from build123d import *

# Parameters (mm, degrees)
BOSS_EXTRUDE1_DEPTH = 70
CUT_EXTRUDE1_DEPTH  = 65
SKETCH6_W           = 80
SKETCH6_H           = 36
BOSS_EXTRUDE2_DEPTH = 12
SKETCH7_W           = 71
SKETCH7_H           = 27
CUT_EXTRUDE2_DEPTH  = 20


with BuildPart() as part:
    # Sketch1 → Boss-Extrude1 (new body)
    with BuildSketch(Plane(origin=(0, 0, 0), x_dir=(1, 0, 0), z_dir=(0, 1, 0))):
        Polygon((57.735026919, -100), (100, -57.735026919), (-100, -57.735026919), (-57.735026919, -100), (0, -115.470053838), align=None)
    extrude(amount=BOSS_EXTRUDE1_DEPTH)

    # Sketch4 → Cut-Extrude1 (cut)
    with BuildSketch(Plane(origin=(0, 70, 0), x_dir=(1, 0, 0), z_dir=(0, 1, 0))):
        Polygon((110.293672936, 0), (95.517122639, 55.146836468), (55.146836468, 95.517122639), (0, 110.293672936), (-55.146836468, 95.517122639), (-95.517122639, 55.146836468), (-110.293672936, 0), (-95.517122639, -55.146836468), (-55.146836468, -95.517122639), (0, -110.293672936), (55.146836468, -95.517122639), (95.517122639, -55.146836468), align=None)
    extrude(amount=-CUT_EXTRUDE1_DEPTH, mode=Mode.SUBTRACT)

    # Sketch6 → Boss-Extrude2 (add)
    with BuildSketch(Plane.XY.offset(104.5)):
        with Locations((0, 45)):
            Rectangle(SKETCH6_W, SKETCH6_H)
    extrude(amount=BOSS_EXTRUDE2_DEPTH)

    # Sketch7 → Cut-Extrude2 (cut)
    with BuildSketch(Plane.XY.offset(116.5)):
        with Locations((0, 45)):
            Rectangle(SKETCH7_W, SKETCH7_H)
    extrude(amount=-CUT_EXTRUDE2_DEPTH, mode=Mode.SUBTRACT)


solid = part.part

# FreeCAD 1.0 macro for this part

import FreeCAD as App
import Part
import Sketcher
from FreeCAD import Vector
Q = App.Units.Quantity

doc = App.newDocument("Part")
params = doc.addObject("Spreadsheet::Sheet", "Params")
for row, (alias, value) in enumerate([
    ("sketch1_width", "200 mm"),
    ("pad1_length", "70 mm"),
    ("pocket1_length", "65 mm"),
    ("sketch3_width", "80 mm"),
    ("sketch3_height", "36 mm"),
    ("pad2_length", "12 mm"),
    ("sketch4_width", "71 mm"),
    ("sketch4_height", "27 mm"),
    ("pocket2_length", "20 mm"),
], start=1):
    params.set(f"A{row}", alias)
    params.set(f"B{row}", "=" + value)
    params.setAlias(f"B{row}", alias)

body = doc.addObject("PartDesign::Body", "Body")

sketch1 = body.newObject("Sketcher::SketchObject", "Sketch")
sketch1.AttachmentSupport = (doc.getObject("XZ_Plane"), [""])
sketch1.MapMode = "FlatFace"
sketch1.addGeometry([
    Part.LineSegment(Vector(57.735027, 100, 0), Vector(100, 57.735027, 0)),
    Part.LineSegment(Vector(100, 57.735027, 0), Vector(-100, 57.735027, 0)),
    Part.LineSegment(Vector(-100, 57.735027, 0), Vector(-57.735027, 100, 0)),
    Part.LineSegment(Vector(-57.735027, 100, 0), Vector(0, 115.470054, 0)),
    Part.LineSegment(Vector(0, 115.470054, 0), Vector(57.735027, 100, 0)),
], False)
sketch1.addConstraint([
    Sketcher.Constraint("Coincident", 0, 2, 1, 1),
    Sketcher.Constraint("Coincident", 1, 2, 2, 1),
    Sketcher.Constraint("Coincident", 2, 2, 3, 1),
    Sketcher.Constraint("Coincident", 3, 2, 4, 1),
    Sketcher.Constraint("Coincident", 4, 2, 0, 1),
    Sketcher.Constraint("Horizontal", 1),
    Sketcher.Constraint("Symmetric", 2, 2, 4, 2, -2),
    Sketcher.Constraint("PointOnObject", 3, 2, -2),
    Sketcher.Constraint("Perpendicular", 0, 2),
    Sketcher.Constraint("Equal", 0, 2),
    Sketcher.Constraint("Equal", 2, 3),
    Sketcher.Constraint("DistanceX", 1, 2, 1, 1, 200.0),
    Sketcher.Constraint("Angle", 3, Q("15 deg")),
    Sketcher.Constraint("DistanceY", -1, 1, 2, 2, 100.0),
])
sketch1.setExpression("Constraints[11]", "Params.sketch1_width")
pad1 = body.newObject("PartDesign::Pad", "Pad")
pad1.Profile = sketch1
pad1.setExpression("Length", "Params.pad1_length")
pad1.Reversed = True

sketch2 = body.newObject("Sketcher::SketchObject", "Sketch001")
sketch2.AttachmentSupport = (doc.getObject("XZ_Plane"), [""])
sketch2.MapMode = "FlatFace"
sketch2.AttachmentOffset = App.Placement(Vector(0, 0, -70), App.Rotation())
sketch2.addGeometry([
    Part.LineSegment(Vector(110.293673, 0, 0), Vector(95.517123, -55.146836, 0)),
    Part.LineSegment(Vector(95.517123, -55.146836, 0), Vector(55.146836, -95.517123, 0)),
    Part.LineSegment(Vector(55.146836, -95.517123, 0), Vector(0, -110.293673, 0)),
    Part.LineSegment(Vector(0, -110.293673, 0), Vector(-55.146836, -95.517123, 0)),
    Part.LineSegment(Vector(-55.146836, -95.517123, 0), Vector(-95.517123, -55.146836, 0)),
    Part.LineSegment(Vector(-95.517123, -55.146836, 0), Vector(-110.293673, 0, 0)),
    Part.LineSegment(Vector(-110.293673, 0, 0), Vector(-95.517123, 55.146836, 0)),
    Part.LineSegment(Vector(-95.517123, 55.146836, 0), Vector(-55.146836, 95.517123, 0)),
    Part.LineSegment(Vector(-55.146836, 95.517123, 0), Vector(0, 110.293673, 0)),
    Part.LineSegment(Vector(0, 110.293673, 0), Vector(55.146836, 95.517123, 0)),
    Part.LineSegment(Vector(55.146836, 95.517123, 0), Vector(95.517123, 55.146836, 0)),
    Part.LineSegment(Vector(95.517123, 55.146836, 0), Vector(110.293673, 0, 0)),
], False)
sketch2.addConstraint([
    Sketcher.Constraint("Coincident", 0, 2, 1, 1),
    Sketcher.Constraint("Coincident", 1, 2, 2, 1),
    Sketcher.Constraint("Coincident", 2, 2, 3, 1),
    Sketcher.Constraint("Coincident", 3, 2, 4, 1),
    Sketcher.Constraint("Coincident", 4, 2, 5, 1),
    Sketcher.Constraint("Coincident", 5, 2, 6, 1),
    Sketcher.Constraint("Coincident", 6, 2, 7, 1),
    Sketcher.Constraint("Coincident", 7, 2, 8, 1),
    Sketcher.Constraint("Coincident", 8, 2, 9, 1),
    Sketcher.Constraint("Coincident", 9, 2, 10, 1),
    Sketcher.Constraint("Coincident", 10, 2, 11, 1),
    Sketcher.Constraint("Coincident", 11, 2, 0, 1),
    Sketcher.Constraint("Symmetric", 0, 2, 6, 2, -1, 1),
    Sketcher.Constraint("Symmetric", 1, 2, 7, 2, -1, 1),
    Sketcher.Constraint("Symmetric", 2, 2, 8, 2, -1, 1),
    Sketcher.Constraint("Symmetric", 3, 2, 9, 2, -1, 1),
    Sketcher.Constraint("Symmetric", 4, 2, 10, 2, -1, 1),
    Sketcher.Constraint("Symmetric", 5, 2, 11, 2, -1, 1),
    Sketcher.Constraint("Symmetric", 1, 2, 3, 2, -2),
    Sketcher.Constraint("Symmetric", 0, 2, 4, 2, -2),
    Sketcher.Constraint("PointOnObject", 2, 2, -2),
    Sketcher.Constraint("PointOnObject", 5, 2, -1),
    Sketcher.Constraint("Perpendicular", 0, 3),
    Sketcher.Constraint("Perpendicular", 1, 4),
    Sketcher.Constraint("Equal", 0, 1),
    Sketcher.Constraint("Equal", 1, 2),
    Sketcher.Constraint("Angle", 0, Q("-105 deg")),
    Sketcher.Constraint("DistanceY", 2, 2, 1, 2, 14.77655),
])
pocket1 = body.newObject("PartDesign::Pocket", "Pocket")
pocket1.Profile = sketch2
pocket1.setExpression("Length", "Params.pocket1_length")
pocket1.Reversed = True

sketch3 = body.newObject("Sketcher::SketchObject", "Sketch002")
sketch3.AttachmentSupport = (doc.getObject("XY_Plane"), [""])
sketch3.MapMode = "FlatFace"
sketch3.AttachmentOffset = App.Placement(Vector(0, 0, 104.5), App.Rotation())
sketch3.addGeometry([
    Part.LineSegment(Vector(-40, 63, 0), Vector(-40, 27, 0)),
    Part.LineSegment(Vector(-40, 27, 0), Vector(40, 27, 0)),
    Part.LineSegment(Vector(40, 27, 0), Vector(40, 63, 0)),
    Part.LineSegment(Vector(40, 63, 0), Vector(-40, 63, 0)),
], False)
sketch3.addConstraint([
    Sketcher.Constraint("Coincident", 0, 2, 1, 1),
    Sketcher.Constraint("Coincident", 1, 2, 2, 1),
    Sketcher.Constraint("Coincident", 2, 2, 3, 1),
    Sketcher.Constraint("Coincident", 3, 2, 0, 1),
    Sketcher.Constraint("Vertical", 0),
    Sketcher.Constraint("Horizontal", 1),
    Sketcher.Constraint("Vertical", 2),
    Sketcher.Constraint("Horizontal", 3),
    Sketcher.Constraint("DistanceX", 1, 1, 1, 2, 80.0),
    Sketcher.Constraint("DistanceY", 0, 2, 0, 1, 36.0),
    Sketcher.Constraint("DistanceX", 0, 2, -1, 1, 40.0),
    Sketcher.Constraint("DistanceY", -1, 1, 0, 2, 27.0),
])
sketch3.setExpression("Constraints[8]", "Params.sketch3_width")
sketch3.setExpression("Constraints[9]", "Params.sketch3_height")
pad2 = body.newObject("PartDesign::Pad", "Pad001")
pad2.Profile = sketch3
pad2.setExpression("Length", "Params.pad2_length")

sketch4 = body.newObject("Sketcher::SketchObject", "Sketch003")
sketch4.AttachmentSupport = (doc.getObject("XY_Plane"), [""])
sketch4.MapMode = "FlatFace"
sketch4.AttachmentOffset = App.Placement(Vector(0, 0, 116.5), App.Rotation())
sketch4.addGeometry([
    Part.LineSegment(Vector(-35.5, 58.5, 0), Vector(-35.5, 31.5, 0)),
    Part.LineSegment(Vector(-35.5, 31.5, 0), Vector(35.5, 31.5, 0)),
    Part.LineSegment(Vector(35.5, 31.5, 0), Vector(35.5, 58.5, 0)),
    Part.LineSegment(Vector(35.5, 58.5, 0), Vector(-35.5, 58.5, 0)),
], False)
sketch4.addConstraint([
    Sketcher.Constraint("Coincident", 0, 2, 1, 1),
    Sketcher.Constraint("Coincident", 1, 2, 2, 1),
    Sketcher.Constraint("Coincident", 2, 2, 3, 1),
    Sketcher.Constraint("Coincident", 3, 2, 0, 1),
    Sketcher.Constraint("Vertical", 0),
    Sketcher.Constraint("Horizontal", 1),
    Sketcher.Constraint("Vertical", 2),
    Sketcher.Constraint("Horizontal", 3),
    Sketcher.Constraint("DistanceX", 1, 1, 1, 2, 71.0),
    Sketcher.Constraint("DistanceY", 0, 2, 0, 1, 27.0),
    Sketcher.Constraint("DistanceX", 0, 2, -1, 1, 35.5),
    Sketcher.Constraint("DistanceY", -1, 1, 0, 2, 31.5),
])
sketch4.setExpression("Constraints[8]", "Params.sketch4_width")
sketch4.setExpression("Constraints[9]", "Params.sketch4_height")
pocket2 = body.newObject("PartDesign::Pocket", "Pocket001")
pocket2.Profile = sketch4
pocket2.setExpression("Length", "Params.pocket2_length")

doc.recompute()
